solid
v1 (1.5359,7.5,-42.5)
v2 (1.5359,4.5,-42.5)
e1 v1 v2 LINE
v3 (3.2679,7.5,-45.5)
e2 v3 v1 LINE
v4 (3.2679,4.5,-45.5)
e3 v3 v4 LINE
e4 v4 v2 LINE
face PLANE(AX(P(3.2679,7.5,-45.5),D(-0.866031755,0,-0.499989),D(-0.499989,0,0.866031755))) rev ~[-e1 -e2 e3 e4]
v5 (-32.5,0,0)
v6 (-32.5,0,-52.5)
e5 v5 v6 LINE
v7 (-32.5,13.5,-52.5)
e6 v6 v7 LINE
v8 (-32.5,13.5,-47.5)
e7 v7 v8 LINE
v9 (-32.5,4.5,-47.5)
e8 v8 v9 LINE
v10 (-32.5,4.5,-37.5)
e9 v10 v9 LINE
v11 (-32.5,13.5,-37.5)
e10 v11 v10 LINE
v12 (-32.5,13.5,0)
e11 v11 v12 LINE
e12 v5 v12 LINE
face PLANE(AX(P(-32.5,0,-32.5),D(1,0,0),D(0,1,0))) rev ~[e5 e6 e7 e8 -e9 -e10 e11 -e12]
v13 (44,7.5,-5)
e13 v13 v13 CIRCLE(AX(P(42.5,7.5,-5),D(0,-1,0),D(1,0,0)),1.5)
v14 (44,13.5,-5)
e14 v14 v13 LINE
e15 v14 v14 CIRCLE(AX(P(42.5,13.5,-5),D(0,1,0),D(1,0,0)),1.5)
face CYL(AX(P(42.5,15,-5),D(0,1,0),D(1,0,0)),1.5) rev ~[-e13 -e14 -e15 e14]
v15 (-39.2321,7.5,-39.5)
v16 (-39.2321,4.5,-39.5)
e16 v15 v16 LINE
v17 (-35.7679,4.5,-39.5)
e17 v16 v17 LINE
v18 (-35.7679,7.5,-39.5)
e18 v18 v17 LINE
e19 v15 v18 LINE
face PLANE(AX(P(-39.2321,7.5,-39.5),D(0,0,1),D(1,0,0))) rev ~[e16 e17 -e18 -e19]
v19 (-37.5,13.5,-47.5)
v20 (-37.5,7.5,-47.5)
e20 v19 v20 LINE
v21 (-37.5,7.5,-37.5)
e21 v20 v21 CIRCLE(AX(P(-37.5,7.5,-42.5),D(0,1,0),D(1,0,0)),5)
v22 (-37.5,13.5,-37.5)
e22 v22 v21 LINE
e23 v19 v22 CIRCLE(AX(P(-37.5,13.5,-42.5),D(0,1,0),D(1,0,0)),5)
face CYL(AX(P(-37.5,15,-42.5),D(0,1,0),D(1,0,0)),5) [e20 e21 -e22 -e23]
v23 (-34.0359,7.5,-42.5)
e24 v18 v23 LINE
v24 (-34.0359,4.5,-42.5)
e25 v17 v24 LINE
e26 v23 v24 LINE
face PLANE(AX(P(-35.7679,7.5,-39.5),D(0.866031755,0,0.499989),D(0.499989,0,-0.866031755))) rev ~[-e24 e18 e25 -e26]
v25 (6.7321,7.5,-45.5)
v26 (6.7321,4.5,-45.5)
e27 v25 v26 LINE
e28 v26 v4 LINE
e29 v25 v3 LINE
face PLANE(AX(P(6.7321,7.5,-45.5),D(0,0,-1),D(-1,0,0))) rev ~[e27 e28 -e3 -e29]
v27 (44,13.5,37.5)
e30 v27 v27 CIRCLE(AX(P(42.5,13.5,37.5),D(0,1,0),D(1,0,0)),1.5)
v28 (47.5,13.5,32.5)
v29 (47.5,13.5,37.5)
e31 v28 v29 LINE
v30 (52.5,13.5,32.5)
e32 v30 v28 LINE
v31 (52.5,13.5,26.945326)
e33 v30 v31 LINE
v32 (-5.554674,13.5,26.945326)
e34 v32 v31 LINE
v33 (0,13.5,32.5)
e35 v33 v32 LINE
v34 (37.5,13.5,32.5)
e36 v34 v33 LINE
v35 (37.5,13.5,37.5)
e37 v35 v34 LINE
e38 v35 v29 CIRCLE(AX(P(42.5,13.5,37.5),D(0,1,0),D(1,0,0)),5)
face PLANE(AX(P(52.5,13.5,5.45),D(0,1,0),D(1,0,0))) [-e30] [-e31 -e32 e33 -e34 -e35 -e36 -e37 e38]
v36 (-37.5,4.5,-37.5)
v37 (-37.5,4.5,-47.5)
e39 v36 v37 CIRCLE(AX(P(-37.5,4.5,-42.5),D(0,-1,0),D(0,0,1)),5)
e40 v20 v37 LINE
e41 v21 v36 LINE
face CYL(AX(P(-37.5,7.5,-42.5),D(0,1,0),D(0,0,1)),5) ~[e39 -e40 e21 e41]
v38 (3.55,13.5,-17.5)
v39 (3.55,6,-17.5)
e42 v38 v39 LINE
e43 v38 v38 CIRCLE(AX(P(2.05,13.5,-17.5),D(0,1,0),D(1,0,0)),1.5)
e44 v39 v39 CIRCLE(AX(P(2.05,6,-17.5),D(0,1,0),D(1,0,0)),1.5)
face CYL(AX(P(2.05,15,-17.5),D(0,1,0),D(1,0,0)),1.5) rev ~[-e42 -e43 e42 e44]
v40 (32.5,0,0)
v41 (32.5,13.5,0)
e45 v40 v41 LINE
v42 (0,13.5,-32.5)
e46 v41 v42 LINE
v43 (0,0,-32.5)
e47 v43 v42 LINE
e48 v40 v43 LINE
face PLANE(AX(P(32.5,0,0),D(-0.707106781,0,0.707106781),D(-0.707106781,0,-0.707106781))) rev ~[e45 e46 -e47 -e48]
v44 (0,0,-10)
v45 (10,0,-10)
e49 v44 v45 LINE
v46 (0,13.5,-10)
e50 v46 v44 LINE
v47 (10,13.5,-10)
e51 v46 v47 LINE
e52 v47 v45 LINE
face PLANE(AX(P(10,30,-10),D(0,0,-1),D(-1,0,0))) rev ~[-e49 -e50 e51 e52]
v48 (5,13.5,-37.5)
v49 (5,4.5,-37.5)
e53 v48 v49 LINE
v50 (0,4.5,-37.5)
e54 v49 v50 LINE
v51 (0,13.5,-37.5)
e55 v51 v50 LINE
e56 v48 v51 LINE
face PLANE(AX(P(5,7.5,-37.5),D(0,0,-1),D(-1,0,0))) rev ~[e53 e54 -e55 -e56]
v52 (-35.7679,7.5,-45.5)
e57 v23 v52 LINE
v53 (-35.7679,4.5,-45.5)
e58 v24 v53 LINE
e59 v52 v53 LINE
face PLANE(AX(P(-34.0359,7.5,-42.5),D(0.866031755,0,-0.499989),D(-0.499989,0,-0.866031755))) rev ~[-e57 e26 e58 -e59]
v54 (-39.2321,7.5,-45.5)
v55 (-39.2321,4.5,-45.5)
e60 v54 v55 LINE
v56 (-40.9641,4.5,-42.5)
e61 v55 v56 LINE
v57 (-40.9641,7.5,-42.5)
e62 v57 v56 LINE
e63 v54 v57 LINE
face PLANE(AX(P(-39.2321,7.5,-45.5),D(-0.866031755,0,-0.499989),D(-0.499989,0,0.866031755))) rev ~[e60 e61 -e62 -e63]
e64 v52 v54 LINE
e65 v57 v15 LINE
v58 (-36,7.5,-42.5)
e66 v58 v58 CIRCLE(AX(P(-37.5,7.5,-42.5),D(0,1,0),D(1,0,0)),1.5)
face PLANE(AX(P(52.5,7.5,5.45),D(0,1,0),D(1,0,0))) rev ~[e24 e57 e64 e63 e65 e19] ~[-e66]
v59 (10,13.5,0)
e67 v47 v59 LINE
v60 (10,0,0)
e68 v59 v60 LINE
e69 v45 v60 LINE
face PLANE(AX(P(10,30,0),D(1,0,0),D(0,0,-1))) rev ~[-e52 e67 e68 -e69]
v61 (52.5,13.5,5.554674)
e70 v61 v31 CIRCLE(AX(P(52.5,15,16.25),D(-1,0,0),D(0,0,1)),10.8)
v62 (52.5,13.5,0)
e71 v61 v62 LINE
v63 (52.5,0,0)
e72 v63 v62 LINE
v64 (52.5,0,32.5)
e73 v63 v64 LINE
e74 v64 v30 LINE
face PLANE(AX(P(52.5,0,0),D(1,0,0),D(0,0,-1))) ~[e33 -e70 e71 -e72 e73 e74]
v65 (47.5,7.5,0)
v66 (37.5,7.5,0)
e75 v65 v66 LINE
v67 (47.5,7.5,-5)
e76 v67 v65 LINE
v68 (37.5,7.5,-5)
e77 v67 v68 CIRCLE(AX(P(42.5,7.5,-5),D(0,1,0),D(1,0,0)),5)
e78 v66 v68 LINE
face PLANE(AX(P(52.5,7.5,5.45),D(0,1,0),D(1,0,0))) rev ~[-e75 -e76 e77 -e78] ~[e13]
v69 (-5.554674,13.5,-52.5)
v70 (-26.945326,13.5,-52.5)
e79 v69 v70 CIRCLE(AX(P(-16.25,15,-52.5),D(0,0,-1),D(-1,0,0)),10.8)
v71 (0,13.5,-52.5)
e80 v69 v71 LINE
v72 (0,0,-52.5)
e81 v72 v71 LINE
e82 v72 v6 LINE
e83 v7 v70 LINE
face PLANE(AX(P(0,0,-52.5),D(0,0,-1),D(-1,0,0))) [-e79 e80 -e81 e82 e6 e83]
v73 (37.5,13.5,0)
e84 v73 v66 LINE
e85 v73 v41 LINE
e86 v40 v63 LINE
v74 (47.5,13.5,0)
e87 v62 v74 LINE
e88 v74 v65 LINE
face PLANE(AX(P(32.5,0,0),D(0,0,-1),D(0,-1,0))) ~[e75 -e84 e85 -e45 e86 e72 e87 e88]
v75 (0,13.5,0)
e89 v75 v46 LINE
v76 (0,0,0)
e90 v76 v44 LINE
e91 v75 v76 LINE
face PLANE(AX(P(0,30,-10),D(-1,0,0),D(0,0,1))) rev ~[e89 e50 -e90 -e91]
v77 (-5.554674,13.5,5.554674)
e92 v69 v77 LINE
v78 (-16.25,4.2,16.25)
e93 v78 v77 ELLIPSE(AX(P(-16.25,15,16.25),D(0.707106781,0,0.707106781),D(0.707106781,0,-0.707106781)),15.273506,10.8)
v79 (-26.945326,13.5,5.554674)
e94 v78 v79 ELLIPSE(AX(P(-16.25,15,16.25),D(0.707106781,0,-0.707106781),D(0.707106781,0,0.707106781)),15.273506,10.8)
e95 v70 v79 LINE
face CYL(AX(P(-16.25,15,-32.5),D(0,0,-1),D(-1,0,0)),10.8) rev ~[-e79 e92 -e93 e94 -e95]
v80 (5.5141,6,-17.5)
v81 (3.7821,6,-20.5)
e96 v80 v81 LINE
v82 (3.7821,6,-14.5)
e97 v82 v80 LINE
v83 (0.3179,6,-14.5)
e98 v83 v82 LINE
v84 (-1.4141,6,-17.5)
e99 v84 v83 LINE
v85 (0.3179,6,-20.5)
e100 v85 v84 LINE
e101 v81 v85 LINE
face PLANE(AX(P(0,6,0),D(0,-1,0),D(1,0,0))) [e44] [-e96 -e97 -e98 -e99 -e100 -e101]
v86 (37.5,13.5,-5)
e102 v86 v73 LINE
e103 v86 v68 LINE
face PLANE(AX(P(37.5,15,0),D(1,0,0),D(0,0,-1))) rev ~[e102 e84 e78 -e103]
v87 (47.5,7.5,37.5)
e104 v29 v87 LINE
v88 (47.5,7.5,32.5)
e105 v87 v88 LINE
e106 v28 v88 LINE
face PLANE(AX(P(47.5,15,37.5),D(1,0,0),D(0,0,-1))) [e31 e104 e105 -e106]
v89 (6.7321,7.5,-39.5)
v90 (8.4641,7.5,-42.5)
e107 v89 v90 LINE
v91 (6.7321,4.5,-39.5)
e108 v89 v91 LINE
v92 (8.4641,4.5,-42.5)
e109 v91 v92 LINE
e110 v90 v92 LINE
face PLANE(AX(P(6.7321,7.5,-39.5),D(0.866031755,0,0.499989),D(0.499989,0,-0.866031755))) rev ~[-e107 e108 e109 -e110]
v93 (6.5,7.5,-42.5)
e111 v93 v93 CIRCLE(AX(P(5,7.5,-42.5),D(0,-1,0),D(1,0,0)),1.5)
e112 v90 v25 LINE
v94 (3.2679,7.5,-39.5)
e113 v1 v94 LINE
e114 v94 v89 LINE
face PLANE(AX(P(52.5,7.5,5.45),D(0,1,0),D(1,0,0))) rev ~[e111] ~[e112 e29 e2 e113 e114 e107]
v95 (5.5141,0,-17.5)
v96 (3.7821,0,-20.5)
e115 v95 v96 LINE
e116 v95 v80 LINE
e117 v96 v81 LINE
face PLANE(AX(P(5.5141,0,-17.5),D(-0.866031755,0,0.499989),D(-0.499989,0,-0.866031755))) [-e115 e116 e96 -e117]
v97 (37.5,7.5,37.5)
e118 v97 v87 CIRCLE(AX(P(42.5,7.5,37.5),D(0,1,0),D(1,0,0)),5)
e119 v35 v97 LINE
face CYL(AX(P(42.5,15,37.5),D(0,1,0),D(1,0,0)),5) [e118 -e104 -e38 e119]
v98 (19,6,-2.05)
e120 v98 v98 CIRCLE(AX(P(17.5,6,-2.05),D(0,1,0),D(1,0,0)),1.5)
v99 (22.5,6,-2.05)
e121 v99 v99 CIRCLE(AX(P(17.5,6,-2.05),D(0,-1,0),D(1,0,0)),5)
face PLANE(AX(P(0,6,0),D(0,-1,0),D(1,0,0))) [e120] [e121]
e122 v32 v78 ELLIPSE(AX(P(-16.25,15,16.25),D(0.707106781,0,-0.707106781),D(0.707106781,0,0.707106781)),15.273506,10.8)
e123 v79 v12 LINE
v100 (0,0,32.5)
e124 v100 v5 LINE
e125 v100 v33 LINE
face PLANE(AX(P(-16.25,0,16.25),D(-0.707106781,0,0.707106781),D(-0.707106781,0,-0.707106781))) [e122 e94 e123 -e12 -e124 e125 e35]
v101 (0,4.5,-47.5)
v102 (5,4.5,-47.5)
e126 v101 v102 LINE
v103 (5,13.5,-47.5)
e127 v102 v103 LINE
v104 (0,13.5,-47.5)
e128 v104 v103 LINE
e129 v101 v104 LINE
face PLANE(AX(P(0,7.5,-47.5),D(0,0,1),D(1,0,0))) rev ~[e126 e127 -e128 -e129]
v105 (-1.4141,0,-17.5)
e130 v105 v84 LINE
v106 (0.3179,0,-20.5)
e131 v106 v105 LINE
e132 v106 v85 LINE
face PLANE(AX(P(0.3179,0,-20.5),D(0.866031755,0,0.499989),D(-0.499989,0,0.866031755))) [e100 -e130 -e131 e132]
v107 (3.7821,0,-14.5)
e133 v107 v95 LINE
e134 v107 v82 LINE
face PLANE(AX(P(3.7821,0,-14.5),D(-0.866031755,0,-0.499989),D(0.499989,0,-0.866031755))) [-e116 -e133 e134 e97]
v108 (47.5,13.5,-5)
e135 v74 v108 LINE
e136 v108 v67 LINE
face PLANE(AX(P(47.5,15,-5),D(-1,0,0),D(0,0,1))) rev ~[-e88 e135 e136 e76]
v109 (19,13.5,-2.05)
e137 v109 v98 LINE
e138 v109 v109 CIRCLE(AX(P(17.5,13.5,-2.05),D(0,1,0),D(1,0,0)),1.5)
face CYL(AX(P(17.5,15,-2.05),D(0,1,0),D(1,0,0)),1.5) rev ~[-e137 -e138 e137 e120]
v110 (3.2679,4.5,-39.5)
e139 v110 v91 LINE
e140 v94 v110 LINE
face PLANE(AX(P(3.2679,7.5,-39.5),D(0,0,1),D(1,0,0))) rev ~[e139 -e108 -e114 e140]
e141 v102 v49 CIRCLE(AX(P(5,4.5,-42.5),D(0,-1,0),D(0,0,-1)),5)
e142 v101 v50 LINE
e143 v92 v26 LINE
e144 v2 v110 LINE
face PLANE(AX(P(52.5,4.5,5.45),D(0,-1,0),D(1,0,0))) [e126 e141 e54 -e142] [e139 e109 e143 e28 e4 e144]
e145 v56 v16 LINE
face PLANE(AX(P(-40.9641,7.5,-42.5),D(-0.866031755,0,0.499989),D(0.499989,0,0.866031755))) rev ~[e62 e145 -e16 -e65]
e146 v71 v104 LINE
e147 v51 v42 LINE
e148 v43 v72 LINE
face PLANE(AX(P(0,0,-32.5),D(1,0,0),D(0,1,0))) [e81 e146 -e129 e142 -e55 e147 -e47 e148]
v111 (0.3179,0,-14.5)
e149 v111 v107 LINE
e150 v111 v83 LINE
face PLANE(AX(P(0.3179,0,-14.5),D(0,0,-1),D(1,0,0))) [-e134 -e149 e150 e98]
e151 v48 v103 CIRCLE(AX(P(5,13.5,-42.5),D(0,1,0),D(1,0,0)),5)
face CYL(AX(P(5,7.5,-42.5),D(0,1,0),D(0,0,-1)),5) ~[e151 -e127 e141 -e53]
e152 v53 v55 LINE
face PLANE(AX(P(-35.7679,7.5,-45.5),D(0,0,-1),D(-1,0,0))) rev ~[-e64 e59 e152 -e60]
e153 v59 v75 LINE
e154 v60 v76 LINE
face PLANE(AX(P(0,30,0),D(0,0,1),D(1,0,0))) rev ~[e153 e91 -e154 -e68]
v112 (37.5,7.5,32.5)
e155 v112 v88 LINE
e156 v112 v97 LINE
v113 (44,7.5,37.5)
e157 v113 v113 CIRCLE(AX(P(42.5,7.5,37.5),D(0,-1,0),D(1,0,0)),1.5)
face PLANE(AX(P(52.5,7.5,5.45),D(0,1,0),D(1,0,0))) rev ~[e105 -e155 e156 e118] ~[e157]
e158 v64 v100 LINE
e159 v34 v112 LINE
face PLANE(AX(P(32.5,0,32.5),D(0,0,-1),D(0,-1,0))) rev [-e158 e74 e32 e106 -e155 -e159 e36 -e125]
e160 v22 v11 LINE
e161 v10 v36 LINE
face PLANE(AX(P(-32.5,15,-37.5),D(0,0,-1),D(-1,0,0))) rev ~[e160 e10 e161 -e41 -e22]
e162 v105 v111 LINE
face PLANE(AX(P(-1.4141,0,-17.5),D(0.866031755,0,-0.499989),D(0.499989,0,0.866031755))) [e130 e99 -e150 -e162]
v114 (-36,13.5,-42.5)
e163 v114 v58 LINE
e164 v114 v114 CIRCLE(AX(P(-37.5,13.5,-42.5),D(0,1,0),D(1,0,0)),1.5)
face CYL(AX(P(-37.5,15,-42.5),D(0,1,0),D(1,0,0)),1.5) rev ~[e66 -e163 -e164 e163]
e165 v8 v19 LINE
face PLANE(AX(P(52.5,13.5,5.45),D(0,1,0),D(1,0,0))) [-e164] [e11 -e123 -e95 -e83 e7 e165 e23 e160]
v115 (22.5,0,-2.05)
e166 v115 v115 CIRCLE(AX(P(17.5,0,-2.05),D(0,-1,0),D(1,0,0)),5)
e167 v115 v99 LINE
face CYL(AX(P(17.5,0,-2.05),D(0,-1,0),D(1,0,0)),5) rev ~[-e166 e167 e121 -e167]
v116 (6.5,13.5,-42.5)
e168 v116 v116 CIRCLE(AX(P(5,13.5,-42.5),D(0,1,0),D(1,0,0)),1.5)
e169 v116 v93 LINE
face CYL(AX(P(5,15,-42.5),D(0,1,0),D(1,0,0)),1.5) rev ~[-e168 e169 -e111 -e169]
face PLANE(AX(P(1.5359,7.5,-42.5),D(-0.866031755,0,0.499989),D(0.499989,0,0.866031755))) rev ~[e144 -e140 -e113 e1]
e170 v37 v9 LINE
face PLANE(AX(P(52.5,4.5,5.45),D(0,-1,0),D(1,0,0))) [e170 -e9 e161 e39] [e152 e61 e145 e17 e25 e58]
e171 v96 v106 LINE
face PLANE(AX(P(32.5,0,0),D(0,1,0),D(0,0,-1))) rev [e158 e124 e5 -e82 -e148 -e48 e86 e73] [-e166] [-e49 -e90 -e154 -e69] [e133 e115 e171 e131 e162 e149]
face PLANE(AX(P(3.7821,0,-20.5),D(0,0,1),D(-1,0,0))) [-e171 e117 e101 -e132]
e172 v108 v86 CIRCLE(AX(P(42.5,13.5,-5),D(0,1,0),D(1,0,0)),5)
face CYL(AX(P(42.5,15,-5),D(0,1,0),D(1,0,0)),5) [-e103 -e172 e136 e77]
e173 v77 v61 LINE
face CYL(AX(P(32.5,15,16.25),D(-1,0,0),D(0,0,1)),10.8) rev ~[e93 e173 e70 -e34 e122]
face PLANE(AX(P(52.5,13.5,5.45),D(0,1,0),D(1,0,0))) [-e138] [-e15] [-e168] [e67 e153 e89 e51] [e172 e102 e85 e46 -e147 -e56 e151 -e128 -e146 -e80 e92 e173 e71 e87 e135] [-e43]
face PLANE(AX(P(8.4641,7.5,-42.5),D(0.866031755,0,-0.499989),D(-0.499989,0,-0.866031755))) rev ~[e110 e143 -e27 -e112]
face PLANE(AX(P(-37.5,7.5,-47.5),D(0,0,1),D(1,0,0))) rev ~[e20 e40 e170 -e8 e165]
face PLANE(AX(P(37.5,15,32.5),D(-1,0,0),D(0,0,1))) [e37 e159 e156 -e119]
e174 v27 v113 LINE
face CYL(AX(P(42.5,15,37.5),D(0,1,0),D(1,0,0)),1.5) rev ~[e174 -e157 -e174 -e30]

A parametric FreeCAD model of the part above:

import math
import FreeCAD as App
import Part
import Sketcher
Q = App.Units.Quantity

doc = App.newDocument("Part")
body = doc.addObject("PartDesign::Body", "Body")

# Sketch on XZ plane
sketch1 = body.newObject("Sketcher::SketchObject", "Sketch")
sketch1.AttachmentSupport = (doc.getObject("XZ_Plane"), [""])
sketch1.MapMode = "FlatFace"
sketch1.addGeometry([
    Part.LineSegment(App.Vector(32, 0, 0), App.Vector(0, -32, 0)),  # 0
    Part.LineSegment(App.Vector(0, -32, 0), App.Vector(-32, -32, 0)),  # 1
    Part.LineSegment(App.Vector(-32, -32, 0), App.Vector(-32, 32, 0)),  # 2
    Part.LineSegment(App.Vector(-32, 32, 0), App.Vector(32, 32, 0)),  # 3
    Part.LineSegment(App.Vector(32, 32, 0), App.Vector(32, 0, 0)),  # 4
], False)
sketch1.addConstraint([
    Sketcher.Constraint("Coincident", 0, 2, 1, 1),
    Sketcher.Constraint("Coincident", 1, 2, 2, 1),
    Sketcher.Constraint("Coincident", 2, 2, 3, 1),
    Sketcher.Constraint("Coincident", 3, 2, 4, 1),
    Sketcher.Constraint("Coincident", 4, 2, 0, 1),
    Sketcher.Constraint("Horizontal", 1),
    Sketcher.Constraint("Vertical", 2),
    Sketcher.Constraint("Horizontal", 3),
    Sketcher.Constraint("Vertical", 4),
    Sketcher.Constraint("Symmetric", 1, 2, 3, 2, -1, 1),
    Sketcher.Constraint("PointOnObject", 0, 2, -2),
    Sketcher.Constraint("PointOnObject", 4, 2, -1),
    Sketcher.Constraint("Equal", 3, 2),
    Sketcher.Constraint("DistanceX", 3, 1, 3, 2, 65.0),
])
pad1 = body.newObject("PartDesign::Pad", "Pad")
pad1.Profile = sketch1
pad1.Length = 30
pad1.Reversed = True

# Sketch on YZ plane
sketch2 = body.newObject("Sketcher::SketchObject", "Sketch001")
sketch2.AttachmentSupport = (doc.getObject("YZ_Plane"), [""])
sketch2.MapMode = "FlatFace"
sketch2.AttachmentOffset = App.Placement(App.Vector(0, 0, 32.5), App.Rotation())
sketch2.addGeometry(Part.Circle(App.Vector(15, 16, 0), App.Vector(0, 0, 1), 11), False)
sketch2.addConstraint([
    Sketcher.Constraint("Diameter", 0, 21.6),
    Sketcher.Constraint("DistanceX", -1, 1, 0, 3, 15.0),
    Sketcher.Constraint("DistanceY", -1, 1, 0, 3, 16.25),
])
pocket1 = body.newObject("PartDesign::Pocket", "Pocket")
pocket1.Profile = sketch2
pocket1.Length = 65.75

# Sketch on XY plane
sketch3 = body.newObject("Sketcher::SketchObject", "Sketch002")
sketch3.AttachmentSupport = (doc.getObject("XY_Plane"), [""])
sketch3.MapMode = "FlatFace"
sketch3.AttachmentOffset = App.Placement(App.Vector(0, 0, -32.5), App.Rotation())
sketch3.addGeometry(Part.Circle(App.Vector(-16, 15, 0), App.Vector(0, 0, 1), 11), False)
sketch3.addConstraint([
    Sketcher.Constraint("Diameter", 0, 21.6),
    Sketcher.Constraint("DistanceY", -1, 1, 0, 3, 15.0),
    Sketcher.Constraint("DistanceX", 0, 3, -1, 1, 16.25),
])
pocket2 = body.newObject("PartDesign::Pocket", "Pocket001")
pocket2.Profile = sketch3
pocket2.Length = 65.75
pocket2.Reversed = True

# Sketch on XY plane
sketch4 = body.newObject("Sketcher::SketchObject", "Sketch003")
sketch4.AttachmentSupport = (doc.getObject("XY_Plane"), [""])
sketch4.MapMode = "FlatFace"
sketch4.AttachmentOffset = App.Placement(App.Vector(0, 0, -32.5), App.Rotation())
sketch4.addGeometry([
    Part.LineSegment(App.Vector(0, 30, 0), App.Vector(0, 0, 0)),  # 0
    Part.LineSegment(App.Vector(0, 0, 0), App.Vector(-32, 0, 0)),  # 1
    Part.LineSegment(App.Vector(-32, 0, 0), App.Vector(-32, 30, 0)),  # 2
    Part.LineSegment(App.Vector(-32, 30, 0), App.Vector(0, 30, 0)),  # 3
    Part.Circle(App.Vector(-16, 15, 0), App.Vector(0, 0, 1), 11),  # 4
], False)
sketch4.addConstraint([
    Sketcher.Constraint("Coincident", 0, 2, 1, 1),
    Sketcher.Constraint("Coincident", 1, 2, 2, 1),
    Sketcher.Constraint("Coincident", 2, 2, 3, 1),
    Sketcher.Constraint("Coincident", 3, 2, 0, 1),
    Sketcher.Constraint("Vertical", 0),
    Sketcher.Constraint("Horizontal", 1),
    Sketcher.Constraint("Vertical", 2),
    Sketcher.Constraint("Horizontal", 3),
    Sketcher.Constraint("Coincident", 0, 2, -1, 1),
    Sketcher.Constraint("Diameter", 4, 21.6),
    Sketcher.Constraint("DistanceY", 0, 2, 0, 1, 30.0),
    Sketcher.Constraint("DistanceX", 1, 2, 1, 1, 32.5),
    Sketcher.Constraint("DistanceY", -1, 1, 4, 3, 15.0),
    Sketcher.Constraint("DistanceX", 4, 3, -1, 1, 16.25),
])
pad2 = body.newObject("PartDesign::Pad", "Pad001")
pad2.Profile = sketch4
pad2.Length = 20
pad2.Reversed = True
doc.recompute()

datumplane = body.newObject("PartDesign::Plane", "DatumPlane")
datumplane.Placement = App.Placement(App.Vector(0, 0, 0), App.Rotation(App.Vector(0.707106781, 0, -0.707106781), App.Vector(0, -1, 0), App.Vector(-0.707106781, 0, -0.707106781), "ZXY"))
mirrored = body.newObject("PartDesign::Mirrored", "Mirrored")
mirrored.Originals = [pad2]
mirrored.MirrorPlane = (datumplane, [""])
body.Tip = mirrored

# Sketch on XZ plane
sketch5 = body.newObject("Sketcher::SketchObject", "Sketch004")
sketch5.AttachmentSupport = (doc.getObject("XZ_Plane"), [""])
sketch5.MapMode = "FlatFace"
sketch5.AttachmentOffset = App.Placement(App.Vector(0, 0, -30), App.Rotation())
sketch5.addGeometry([
    Part.LineSegment(App.Vector(0, -10, 0), App.Vector(0, 0, 0)),
    Part.LineSegment(App.Vector(0, 0, 0), App.Vector(10, 0, 0)),
    Part.LineSegment(App.Vector(10, 0, 0), App.Vector(10, -10, 0)),
    Part.LineSegment(App.Vector(10, -10, 0), App.Vector(0, -10, 0)),
], False)
sketch5.addConstraint([
    Sketcher.Constraint("Coincident", 0, 2, 1, 1),
    Sketcher.Constraint("Coincident", 1, 2, 2, 1),
    Sketcher.Constraint("Coincident", 2, 2, 3, 1),
    Sketcher.Constraint("Coincident", 3, 2, 0, 1),
    Sketcher.Constraint("Vertical", 0),
    Sketcher.Constraint("Horizontal", 1),
    Sketcher.Constraint("Vertical", 2),
    Sketcher.Constraint("Horizontal", 3),
    Sketcher.Constraint("Coincident", 0, 2, -1, 1),
    Sketcher.Constraint("Equal", 3, 0),
    Sketcher.Constraint("DistanceX", 1, 1, 1, 2, 10.0),
])
pocket3 = body.newObject("PartDesign::Pocket", "Pocket002")
pocket3.Profile = sketch5
pocket3.Length = 72
pocket3.Reversed = True

# Sketch on XZ plane
sketch6 = body.newObject("Sketcher::SketchObject", "Sketch005")
sketch6.AttachmentSupport = (doc.getObject("XZ_Plane"), [""])
sketch6.MapMode = "FlatFace"
sketch6.addGeometry([
    Part.LineSegment(App.Vector(0, 32, 0), App.Vector(-32, 32, 0)),
    Part.LineSegment(App.Vector(-32, 32, 0), App.Vector(-32, 0, 0)),
    Part.LineSegment(App.Vector(-32, 0, 0), App.Vector(0, 32, 0)),
], False)
sketch6.addConstraint([
    Sketcher.Constraint("Coincident", 0, 2, 1, 1),
    Sketcher.Constraint("Coincident", 1, 2, 2, 1),
    Sketcher.Constraint("Coincident", 2, 2, 0, 1),
    Sketcher.Constraint("Horizontal", 0),
    Sketcher.Constraint("Vertical", 1),
    Sketcher.Constraint("PointOnObject", 1, 2, -1),
    Sketcher.Constraint("PointOnObject", 2, 2, -2),
    Sketcher.Constraint("Equal", 0, 1),
    Sketcher.Constraint("DistanceX", 0, 2, 0, 1, 32.5),
])
pocket4 = body.newObject("PartDesign::Pocket", "Pocket003")
pocket4.Profile = sketch6
pocket4.Length = 77

# Sketch on YZ plane
sketch7 = body.newObject("Sketcher::SketchObject", "Sketch006")
sketch7.AttachmentSupport = (doc.getObject("YZ_Plane"), [""])
sketch7.MapMode = "FlatFace"
sketch7.AttachmentOffset = App.Placement(App.Vector(0, 0, 52.5), App.Rotation())
sketch7.addGeometry([
    Part.LineSegment(App.Vector(15, 32, 0), App.Vector(15, -52, 0)),
    Part.LineSegment(App.Vector(15, -52, 0), App.Vector(30, -52, 0)),
    Part.LineSegment(App.Vector(30, -52, 0), App.Vector(30, 32, 0)),
    Part.LineSegment(App.Vector(30, 32, 0), App.Vector(15, 32, 0)),
], False)
sketch7.addConstraint([
    Sketcher.Constraint("Coincident", 0, 2, 1, 1),
    Sketcher.Constraint("Coincident", 1, 2, 2, 1),
    Sketcher.Constraint("Coincident", 2, 2, 3, 1),
    Sketcher.Constraint("Coincident", 3, 2, 0, 1),
    Sketcher.Constraint("Vertical", 0),
    Sketcher.Constraint("Horizontal", 1),
    Sketcher.Constraint("Vertical", 2),
    Sketcher.Constraint("Horizontal", 3),
    Sketcher.Constraint("DistanceX", 1, 1, 1, 2, 15.0),
    Sketcher.Constraint("DistanceY", 0, 2, 0, 1, 85.0),
    Sketcher.Constraint("DistanceX", -1, 1, 0, 2, 15.0),
    Sketcher.Constraint("DistanceY", 0, 2, -1, 1, 52.5),
])
pocket5 = body.newObject("PartDesign::Pocket", "Pocket004")
pocket5.Profile = sketch7
pocket5.Length = 103.25

# Sketch on XZ plane
sketch8 = body.newObject("Sketcher::SketchObject", "Sketch007")
sketch8.AttachmentSupport = (doc.getObject("XZ_Plane"), [""])
sketch8.MapMode = "FlatFace"
sketch8.AttachmentOffset = App.Placement(App.Vector(0, 0, -15), App.Rotation())
sketch8.addGeometry([
    Part.LineSegment(App.Vector(-37.5, -37.5, 0), App.Vector(-32.5, -37.5, 0)),  # 0
    Part.LineSegment(App.Vector(-32.5, -37.5, 0), App.Vector(-32.5, -47.5, 0)),  # 1
    Part.LineSegment(App.Vector(-32.5, -47.5, 0), App.Vector(-37.5, -47.5, 0)),  # 2
    Part.ArcOfCircle(Part.Circle(App.Vector(-37.5, -42.5, 0), App.Vector(0, 0, 1), 5), math.radians(90), math.radians(270)),  # 3
    Part.Circle(App.Vector(-37.5, -42.5, 0), App.Vector(0, 0, 1), 1.5),  # 4
    Part.LineSegment(App.Vector(0, -47.5, 0), App.Vector(0, -37.5, 0)),  # 5
    Part.LineSegment(App.Vector(0, -37.5, 0), App.Vector(5, -37.5, 0)),  # 6
    Part.ArcOfCircle(Part.Circle(App.Vector(5, -42.5, 0), App.Vector(0, 0, 1), 5), math.radians(-90), math.radians(90)),  # 7
    Part.LineSegment(App.Vector(5, -47.5, 0), App.Vector(0, -47.5, 0)),  # 8
    Part.Circle(App.Vector(5, -42.5, 0), App.Vector(0, 0, 1), 1.5),  # 9
    Part.LineSegment(App.Vector(47.5, 32.5, 0), App.Vector(37.5, 32.5, 0)),  # 10
    Part.LineSegment(App.Vector(37.5, 32.5, 0), App.Vector(37.5, 37.5, 0)),  # 11
    Part.ArcOfCircle(Part.Circle(App.Vector(42.5, 37.5, 0), App.Vector(0, 0, 1), 5), math.radians(0), math.radians(180)),  # 12
    Part.LineSegment(App.Vector(47.5, 37.5, 0), App.Vector(47.5, 32.5, 0)),  # 13
    Part.Circle(App.Vector(42.5, 37.5, 0), App.Vector(0, 0, 1), 1.5),  # 14
    Part.LineSegment(App.Vector(37.5, 0, 0), App.Vector(47.5, 0, 0)),  # 15
    Part.LineSegment(App.Vector(47.5, 0, 0), App.Vector(47.5, -5, 0)),  # 16
    Part.ArcOfCircle(Part.Circle(App.Vector(42.5, -5, 0), App.Vector(0, 0, 1), 5), math.radians(180), math.radians(360)),  # 17
    Part.LineSegment(App.Vector(37.5, -5, 0), App.Vector(37.5, 0, 0)),  # 18
    Part.Circle(App.Vector(42.5, -5, 0), App.Vector(0, 0, 1), 1.5),  # 19
], False)
sketch8.addConstraint([
    Sketcher.Constraint("Coincident", 0, 2, 1, 1),
    Sketcher.Constraint("Coincident", 1, 2, 2, 1),
    Sketcher.Constraint("Tangent", 2, 2, 3, 2),
    Sketcher.Constraint("Tangent", 3, 1, 0, 1),
    Sketcher.Constraint("Coincident", 5, 2, 6, 1),
    Sketcher.Constraint("Tangent", 6, 2, 7, 2),
    Sketcher.Constraint("Tangent", 7, 1, 8, 1),
    Sketcher.Constraint("Coincident", 8, 2, 5, 1),
    Sketcher.Constraint("Coincident", 10, 2, 11, 1),
    Sketcher.Constraint("Tangent", 11, 2, 12, 2),
    Sketcher.Constraint("Tangent", 12, 1, 13, 1),
    Sketcher.Constraint("Coincident", 13, 2, 10, 1),
    Sketcher.Constraint("Coincident", 15, 2, 16, 1),
    Sketcher.Constraint("Tangent", 16, 2, 17, 2),
    Sketcher.Constraint("Tangent", 17, 1, 18, 1),
    Sketcher.Constraint("Coincident", 18, 2, 15, 1),
    Sketcher.Constraint("Horizontal", 0),
    Sketcher.Constraint("Vertical", 1),
    Sketcher.Constraint("Horizontal", 2),
    Sketcher.Constraint("Vertical", 5),
    Sketcher.Constraint("Horizontal", 6),
    Sketcher.Constraint("Horizontal", 8),
    Sketcher.Constraint("Horizontal", 10),
    Sketcher.Constraint("Vertical", 11),
    Sketcher.Constraint("Vertical", 13),
    Sketcher.Constraint("Horizontal", 15),
    Sketcher.Constraint("Vertical", 16),
    Sketcher.Constraint("Vertical", 18),
    Sketcher.Constraint("Coincident", 4, 3, 3, 3),
    Sketcher.Constraint("Coincident", 9, 3, 7, 3),
    Sketcher.Constraint("Coincident", 14, 3, 12, 3),
    Sketcher.Constraint("Coincident", 19, 3, 17, 3),
    Sketcher.Constraint("Equal", 3, 7),
    Sketcher.Constraint("Equal", 4, 9),
    Sketcher.Constraint("Equal", 7, 12),
    Sketcher.Constraint("Equal", 9, 14),
    Sketcher.Constraint("Equal", 12, 17),
    Sketcher.Constraint("Equal", 14, 19),
    Sketcher.Constraint("Symmetric", 3, 1, 11, 2, -1, 1),
    Sketcher.Constraint("PointOnObject", 5, 2, -2),
    Sketcher.Constraint("PointOnObject", 15, 2, -1),
    Sketcher.Constraint("Horizontal", 4, 3, 7, 3),
    Sketcher.Constraint("Vertical", 14, 3, 17, 3),
    Sketcher.Constraint("Equal", 2, 6),
    Sketcher.Constraint("Equal", 8, 11),
    Sketcher.Constraint("Equal", 13, 16),
    Sketcher.Constraint("Diameter", 4, 3.0),
    Sketcher.Constraint("Radius", 3, 5.0),
    Sketcher.Constraint("DistanceX", 0, 1, 0, 2, 5.0),
    Sketcher.Constraint("DistanceY", 7, 3, 12, 3, 80.0),
    Sketcher.Constraint("DistanceX", 3, 3, 12, 3, 80.0),
])
pad3 = body.newObject("PartDesign::Pad", "Pad002")
pad3.Profile = sketch8
pad3.Length = 7.5

# Sketch on XZ plane
sketch9 = body.newObject("Sketcher::SketchObject", "Sketch008")
sketch9.AttachmentSupport = (doc.getObject("XZ_Plane"), [""])
sketch9.MapMode = "FlatFace"
sketch9.AttachmentOffset = App.Placement(App.Vector(0, 0, -15), App.Rotation())
sketch9.addGeometry([
    Part.Circle(App.Vector(2, -17.5, 0), App.Vector(0, 0, 1), 1.5),
    Part.Circle(App.Vector(17.5, -2, 0), App.Vector(0, 0, 1), 1.5),
], False)
sketch9.addConstraint([
    Sketcher.Constraint("Equal", 0, 1),
    Sketcher.Constraint("Diameter", 0, 3.0),
    Sketcher.Constraint("DistanceY", 0, 3, -1, 1, 17.5),
    Sketcher.Constraint("DistanceX", -1, 1, 1, 3, 17.5),
    Sketcher.Constraint("DistanceX", -1, 1, 0, 3, 2.05),
    Sketcher.Constraint("DistanceY", 1, 3, -1, 1, 2.05),
])
pocket6 = body.newObject("PartDesign::Pocket", "Pocket005")
pocket6.Profile = sketch9
pocket6.Length = 19
pocket6.Reversed = True

# Sketch on XZ plane
sketch10 = body.newObject("Sketcher::SketchObject", "Sketch009")
sketch10.AttachmentSupport = (doc.getObject("XZ_Plane"), [""])
sketch10.MapMode = "FlatFace"
sketch10.AttachmentOffset = App.Placement(App.Vector(0, 0, -7.5), App.Rotation())
sketch10.addGeometry([
    Part.LineSegment(App.Vector(-32.5, -47.5, 0), App.Vector(-32.5, -37.5, 0)),  # 0
    Part.LineSegment(App.Vector(-32.5, -37.5, 0), App.Vector(-37.5, -37.5, 0)),  # 1
    Part.ArcOfCircle(Part.Circle(App.Vector(-37.5, -42.5, 0), App.Vector(0, 0, 1), 5), math.radians(90), math.radians(270)),  # 2
    Part.LineSegment(App.Vector(-37.5, -47.5, 0), App.Vector(-32.5, -47.5, 0)),  # 3
    Part.LineSegment(App.Vector(-39.2, -45.5, 0), App.Vector(-41, -42.5, 0)),  # 4
    Part.LineSegment(App.Vector(-41, -42.5, 0), App.Vector(-39.2, -39.5, 0)),  # 5
    Part.LineSegment(App.Vector(-39.2, -39.5, 0), App.Vector(-35.8, -39.5, 0)),  # 6
    Part.LineSegment(App.Vector(-35.8, -39.5, 0), App.Vector(-34, -42.5, 0)),  # 7
    Part.LineSegment(App.Vector(-34, -42.5, 0), App.Vector(-35.8, -45.5, 0)),  # 8
    Part.LineSegment(App.Vector(-35.8, -45.5, 0), App.Vector(-39.2, -45.5, 0)),  # 9
], False)
sketch10.addConstraint([
    Sketcher.Constraint("Coincident", 0, 2, 1, 1),
    Sketcher.Constraint("Tangent", 1, 2, 2, 1),
    Sketcher.Constraint("Tangent", 2, 2, 3, 1),
    Sketcher.Constraint("Coincident", 3, 2, 0, 1),
    Sketcher.Constraint("Coincident", 4, 2, 5, 1),
    Sketcher.Constraint("Coincident", 5, 2, 6, 1),
    Sketcher.Constraint("Coincident", 6, 2, 7, 1),
    Sketcher.Constraint("Coincident", 7, 2, 8, 1),
    Sketcher.Constraint("Coincident", 8, 2, 9, 1),
    Sketcher.Constraint("Coincident", 9, 2, 4, 1),
    Sketcher.Constraint("Vertical", 0),
    Sketcher.Constraint("Horizontal", 1),
    Sketcher.Constraint("Horizontal", 3),
    Sketcher.Constraint("Horizontal", 6),
    Sketcher.Constraint("Horizontal", 9),
    Sketcher.Constraint("Parallel", 4, 7),
    Sketcher.Constraint("Parallel", 5, 8),
    Sketcher.Constraint("Horizontal", 2, 3, 4, 2),
    Sketcher.Constraint("Horizontal", 4, 2, 7, 2),
    Sketcher.Constraint("Vertical", 6, 2, 8, 2),
    Sketcher.Constraint("Vertical", 5, 2, 9, 2),
    Sketcher.Constraint("Radius", 2, 5.0),
    Sketcher.Constraint("DistanceY", 8, 2, 6, 2, 6.0),
    Sketcher.Constraint("DistanceX", 1, 2, 1, 1, 5.0),
    Sketcher.Constraint("Angle", 4, Q("119.9993 deg")),
    Sketcher.Constraint("DistanceX", 2, 3, -1, 1, 37.5),
    Sketcher.Constraint("DistanceY", 2, 3, -1, 1, 42.5),
    Sketcher.Constraint("DistanceX", 6, 1, 6, 2, 3.4642),
    Sketcher.Constraint("DistanceX", 4, 2, -1, 1, 40.964),
])
pad4 = body.newObject("PartDesign::Pad", "Pad003")
pad4.Profile = sketch10
pad4.Length = 3

# Sketch on XZ plane
sketch11 = body.newObject("Sketcher::SketchObject", "Sketch010")
sketch11.AttachmentSupport = (doc.getObject("XZ_Plane"), [""])
sketch11.MapMode = "FlatFace"
sketch11.AttachmentOffset = App.Placement(App.Vector(0, 0, -7.5), App.Rotation())
sketch11.addGeometry([
    Part.ArcOfCircle(Part.Circle(App.Vector(5, -42.5, 0), App.Vector(0, 0, 1), 5), math.radians(-90), math.radians(90)),  # 0
    Part.LineSegment(App.Vector(5, -37.5, 0), App.Vector(0, -37.5, 0)),  # 1
    Part.LineSegment(App.Vector(0, -37.5, 0), App.Vector(0, -47.5, 0)),  # 2
    Part.LineSegment(App.Vector(0, -47.5, 0), App.Vector(5, -47.5, 0)),  # 3
    Part.LineSegment(App.Vector(3.3, -45.5, 0), App.Vector(1.5, -42.5, 0)),  # 4
    Part.LineSegment(App.Vector(1.5, -42.5, 0), App.Vector(3.3, -39.5, 0)),  # 5
    Part.LineSegment(App.Vector(3.3, -39.5, 0), App.Vector(6.7, -39.5, 0)),  # 6
    Part.LineSegment(App.Vector(6.7, -39.5, 0), App.Vector(8.5, -42.5, 0)),  # 7
    Part.LineSegment(App.Vector(8.5, -42.5, 0), App.Vector(6.7, -45.5, 0)),  # 8
    Part.LineSegment(App.Vector(6.7, -45.5, 0), App.Vector(3.3, -45.5, 0)),  # 9
], False)
sketch11.addConstraint([
    Sketcher.Constraint("Tangent", 0, 2, 1, 1),
    Sketcher.Constraint("Coincident", 1, 2, 2, 1),
    Sketcher.Constraint("Coincident", 2, 2, 3, 1),
    Sketcher.Constraint("Tangent", 3, 2, 0, 1),
    Sketcher.Constraint("Coincident", 4, 2, 5, 1),
    Sketcher.Constraint("Coincident", 5, 2, 6, 1),
    Sketcher.Constraint("Coincident", 6, 2, 7, 1),
    Sketcher.Constraint("Coincident", 7, 2, 8, 1),
    Sketcher.Constraint("Coincident", 8, 2, 9, 1),
    Sketcher.Constraint("Coincident", 9, 2, 4, 1),
    Sketcher.Constraint("Horizontal", 1),
    Sketcher.Constraint("Vertical", 2),
    Sketcher.Constraint("Horizontal", 3),
    Sketcher.Constraint("Horizontal", 6),
    Sketcher.Constraint("Horizontal", 9),
    Sketcher.Constraint("PointOnObject", 1, 2, -2),
    Sketcher.Constraint("Parallel", 4, 7),
    Sketcher.Constraint("Parallel", 5, 8),
    Sketcher.Constraint("Horizontal", 0, 3, 4, 2),
    Sketcher.Constraint("Horizontal", 4, 2, 7, 2),
    Sketcher.Constraint("Vertical", 6, 2, 8, 2),
    Sketcher.Constraint("Vertical", 5, 2, 9, 2),
    Sketcher.Constraint("Radius", 0, 5.0),
    Sketcher.Constraint("DistanceY", 8, 2, 6, 2, 6.0),
    Sketcher.Constraint("DistanceX", 1, 2, 1, 1, 5.0),
    Sketcher.Constraint("Angle", 4, Q("119.9993 deg")),
    Sketcher.Constraint("DistanceY", 0, 3, -1, 1, 42.5),
    Sketcher.Constraint("DistanceX", 6, 1, 6, 2, 3.4642),
    Sketcher.Constraint("DistanceX", -1, 1, 4, 2, 1.536),
])
pad5 = body.newObject("PartDesign::Pad", "Pad004")
pad5.Profile = sketch11
pad5.Length = 3

# Sketch on XZ plane
sketch12 = body.newObject("Sketcher::SketchObject", "Sketch011")
sketch12.AttachmentSupport = (doc.getObject("XZ_Plane"), [""])
sketch12.MapMode = "FlatFace"
sketch12.addGeometry([
    Part.LineSegment(App.Vector(0.3, -14.5, 0), App.Vector(-1.4, -17.5, 0)),  # 0
    Part.LineSegment(App.Vector(-1.4, -17.5, 0), App.Vector(0.3, -20.5, 0)),  # 1
    Part.LineSegment(App.Vector(0.3, -20.5, 0), App.Vector(3.8, -20.5, 0)),  # 2
    Part.LineSegment(App.Vector(3.8, -20.5, 0), App.Vector(5.5, -17.5, 0)),  # 3
    Part.LineSegment(App.Vector(5.5, -17.5, 0), App.Vector(3.8, -14.5, 0)),  # 4
    Part.LineSegment(App.Vector(3.8, -14.5, 0), App.Vector(0.3, -14.5, 0)),  # 5
    Part.Circle(App.Vector(17.5, -2, 0), App.Vector(0, 0, 1), 5),  # 6
], False)
sketch12.addConstraint([
    Sketcher.Constraint("Coincident", 0, 2, 1, 1),
    Sketcher.Constraint("Coincident", 1, 2, 2, 1),
    Sketcher.Constraint("Coincident", 2, 2, 3, 1),
    Sketcher.Constraint("Coincident", 3, 2, 4, 1),
    Sketcher.Constraint("Coincident", 4, 2, 5, 1),
    Sketcher.Constraint("Coincident", 5, 2, 0, 1),
    Sketcher.Constraint("Horizontal", 2),
    Sketcher.Constraint("Horizontal", 5),
    Sketcher.Constraint("Parallel", 0, 3),
    Sketcher.Constraint("Parallel", 1, 4),
    Sketcher.Constraint("Horizontal", 0, 2, 3, 2),
    Sketcher.Constraint("Vertical", 2, 2, 4, 2),
    Sketcher.Constraint("Vertical", 1, 2, 5, 2),
    Sketcher.Constraint("Diameter", 6, 10.0),
    Sketcher.Constraint("DistanceY", 2, 2, 4, 2, 6.0),
    Sketcher.Constraint("Angle", 0, Q("-119.9993 deg")),
    Sketcher.Constraint("DistanceX", -1, 1, 6, 3, 17.5),
    Sketcher.Constraint("DistanceY", 0, 2, -1, 1, 17.5),
    Sketcher.Constraint("DistanceY", 6, 3, -1, 1, 2.05),
    Sketcher.Constraint("DistanceX", 2, 1, 2, 2, 3.4642),
    Sketcher.Constraint("DistanceX", 0, 2, -1, 1, 1.414),
])
pocket7 = body.newObject("PartDesign::Pocket", "Pocket006")
pocket7.Profile = sketch12
pocket7.Length = 6

# Sketch on XZ plane
sketch13 = body.newObject("Sketcher::SketchObject", "Sketch012")
sketch13.AttachmentSupport = (doc.getObject("XZ_Plane"), [""])
sketch13.MapMode = "FlatFace"
sketch13.AttachmentOffset = App.Placement(App.Vector(0, 0, -15), App.Rotation())
sketch13.addGeometry(Part.Circle(App.Vector(0, 0, 0), App.Vector(0, 0, 1), 98), False)
sketch13.addConstraint([
    Sketcher.Constraint("Coincident", 0, 3, -1, 1),
    Sketcher.Constraint("Diameter", 0, 196.4722),
])
pocket8 = body.newObject("PartDesign::Pocket", "Pocket007")
pocket8.Profile = sketch13
pocket8.Length = 1.5
pocket8.Reversed = True

doc.recompute()
